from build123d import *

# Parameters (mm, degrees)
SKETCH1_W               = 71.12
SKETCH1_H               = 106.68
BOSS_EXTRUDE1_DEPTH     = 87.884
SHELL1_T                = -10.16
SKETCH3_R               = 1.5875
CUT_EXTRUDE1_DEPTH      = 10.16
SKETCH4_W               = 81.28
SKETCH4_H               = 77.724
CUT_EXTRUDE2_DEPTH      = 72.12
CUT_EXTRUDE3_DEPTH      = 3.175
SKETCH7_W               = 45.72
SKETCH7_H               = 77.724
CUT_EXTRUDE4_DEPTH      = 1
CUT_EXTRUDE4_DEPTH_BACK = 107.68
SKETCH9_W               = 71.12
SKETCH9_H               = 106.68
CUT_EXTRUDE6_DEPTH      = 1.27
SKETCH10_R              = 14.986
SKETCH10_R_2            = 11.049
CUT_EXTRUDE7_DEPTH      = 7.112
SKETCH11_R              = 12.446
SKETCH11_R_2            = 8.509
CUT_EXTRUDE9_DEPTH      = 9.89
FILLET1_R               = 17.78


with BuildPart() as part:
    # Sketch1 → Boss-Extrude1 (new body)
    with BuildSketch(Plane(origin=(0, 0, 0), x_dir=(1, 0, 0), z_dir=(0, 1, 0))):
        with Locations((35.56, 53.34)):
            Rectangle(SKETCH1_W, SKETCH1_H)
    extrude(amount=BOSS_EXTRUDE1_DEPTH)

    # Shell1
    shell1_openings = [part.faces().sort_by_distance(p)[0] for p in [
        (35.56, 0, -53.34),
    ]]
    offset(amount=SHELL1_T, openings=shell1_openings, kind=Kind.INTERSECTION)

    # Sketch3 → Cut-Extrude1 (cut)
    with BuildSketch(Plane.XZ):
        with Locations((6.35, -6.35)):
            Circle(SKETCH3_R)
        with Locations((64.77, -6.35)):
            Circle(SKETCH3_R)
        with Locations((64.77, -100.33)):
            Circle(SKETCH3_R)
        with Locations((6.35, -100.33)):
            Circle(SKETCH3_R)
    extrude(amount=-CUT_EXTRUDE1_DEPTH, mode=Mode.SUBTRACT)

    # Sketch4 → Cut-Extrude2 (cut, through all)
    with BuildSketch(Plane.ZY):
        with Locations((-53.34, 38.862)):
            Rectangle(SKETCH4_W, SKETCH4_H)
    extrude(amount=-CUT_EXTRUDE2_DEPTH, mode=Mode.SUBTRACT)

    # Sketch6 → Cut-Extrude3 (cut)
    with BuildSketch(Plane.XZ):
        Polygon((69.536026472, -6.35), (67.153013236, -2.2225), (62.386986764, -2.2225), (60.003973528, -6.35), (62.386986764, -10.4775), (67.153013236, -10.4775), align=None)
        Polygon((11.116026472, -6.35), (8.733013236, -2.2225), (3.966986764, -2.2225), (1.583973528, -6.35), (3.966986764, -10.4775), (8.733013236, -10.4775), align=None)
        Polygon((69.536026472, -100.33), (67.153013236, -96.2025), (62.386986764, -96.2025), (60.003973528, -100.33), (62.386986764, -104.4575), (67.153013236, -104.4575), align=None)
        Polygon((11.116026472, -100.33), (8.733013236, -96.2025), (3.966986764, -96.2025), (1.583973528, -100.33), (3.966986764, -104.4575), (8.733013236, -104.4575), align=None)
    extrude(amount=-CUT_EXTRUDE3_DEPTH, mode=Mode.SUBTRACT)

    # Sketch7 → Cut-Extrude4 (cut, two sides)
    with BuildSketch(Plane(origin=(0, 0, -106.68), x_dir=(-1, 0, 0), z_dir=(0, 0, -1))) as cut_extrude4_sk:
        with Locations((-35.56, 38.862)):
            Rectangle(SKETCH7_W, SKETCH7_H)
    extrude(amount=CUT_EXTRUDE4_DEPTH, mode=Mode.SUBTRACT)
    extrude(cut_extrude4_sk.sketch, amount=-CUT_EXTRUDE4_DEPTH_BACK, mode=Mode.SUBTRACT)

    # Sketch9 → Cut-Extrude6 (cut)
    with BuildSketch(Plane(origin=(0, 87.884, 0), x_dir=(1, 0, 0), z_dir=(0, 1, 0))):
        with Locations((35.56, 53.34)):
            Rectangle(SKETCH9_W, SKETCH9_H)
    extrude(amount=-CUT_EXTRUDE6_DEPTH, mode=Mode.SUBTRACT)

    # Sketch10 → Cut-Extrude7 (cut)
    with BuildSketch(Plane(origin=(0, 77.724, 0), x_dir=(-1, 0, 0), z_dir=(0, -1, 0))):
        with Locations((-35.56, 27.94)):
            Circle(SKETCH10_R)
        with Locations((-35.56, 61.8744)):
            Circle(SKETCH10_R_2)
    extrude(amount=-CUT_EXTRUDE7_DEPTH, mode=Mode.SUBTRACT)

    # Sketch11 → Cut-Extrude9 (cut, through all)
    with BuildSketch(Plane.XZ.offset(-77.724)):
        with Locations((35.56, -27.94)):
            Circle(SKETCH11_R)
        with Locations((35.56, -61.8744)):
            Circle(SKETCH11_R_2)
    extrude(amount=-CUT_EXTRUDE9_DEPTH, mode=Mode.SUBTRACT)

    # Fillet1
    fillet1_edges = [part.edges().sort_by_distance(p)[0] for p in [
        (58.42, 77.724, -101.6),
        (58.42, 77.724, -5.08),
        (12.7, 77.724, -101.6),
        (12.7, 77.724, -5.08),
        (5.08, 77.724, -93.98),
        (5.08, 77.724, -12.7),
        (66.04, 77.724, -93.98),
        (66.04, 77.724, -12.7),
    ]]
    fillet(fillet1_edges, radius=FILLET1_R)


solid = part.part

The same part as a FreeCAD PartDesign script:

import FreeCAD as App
import Part
import Sketcher
Q = App.Units.Quantity


def edges_at(feature, points):
    """Names of the edges that pass closest to the given points."""
    edges = feature.Shape.Edges
    near = lambda p: min(range(len(edges)), key=lambda i: edges[i].distToShape(Part.Vertex(*p))[0])
    return sorted({f"Edge{near(p) + 1}" for p in points})


def faces_at(feature, points):
    """Names of the faces that lie closest to the given points."""
    faces = feature.Shape.Faces
    near = lambda p: min(range(len(faces)), key=lambda i: faces[i].distToShape(Part.Vertex(*p))[0])
    return sorted({f"Face{near(p) + 1}" for p in points})

doc = App.newDocument("Part")
body = doc.addObject("PartDesign::Body", "Body")

# Sketch on XZ plane
sketch1 = body.newObject("Sketcher::SketchObject", "Sketch")
sketch1.AttachmentSupport = (doc.getObject("XZ_Plane"), [""])
sketch1.MapMode = "FlatFace"
sketch1.addGeometry([
    Part.LineSegment(App.Vector(0, -106.68, 0), App.Vector(0, 0, 0)),
    Part.LineSegment(App.Vector(0, 0, 0), App.Vector(71.12, 0, 0)),
    Part.LineSegment(App.Vector(71.12, 0, 0), App.Vector(71.12, -106.68, 0)),
    Part.LineSegment(App.Vector(71.12, -106.68, 0), App.Vector(0, -106.68, 0)),
], False)
sketch1.addConstraint([
    Sketcher.Constraint("Coincident", 0, 2, 1, 1),
    Sketcher.Constraint("Coincident", 1, 2, 2, 1),
    Sketcher.Constraint("Coincident", 2, 2, 3, 1),
    Sketcher.Constraint("Coincident", 3, 2, 0, 1),
    Sketcher.Constraint("Vertical", 0),
    Sketcher.Constraint("Horizontal", 1),
    Sketcher.Constraint("Vertical", 2),
    Sketcher.Constraint("Horizontal", 3),
    Sketcher.Constraint("Coincident", 0, 2, -1, 1),
    Sketcher.Constraint("DistanceX", 1, 1, 1, 2, Q("2.8 in")),
    Sketcher.Constraint("DistanceY", 0, 1, 0, 2, Q("4.2 in")),
])
pad1 = body.newObject("PartDesign::Pad", "Pad")
pad1.Profile = sketch1
pad1.Length = Q("3.46 in")
pad1.Reversed = True
doc.recompute()

thickness = body.newObject("PartDesign::Thickness", "Thickness")
thickness.Base = (pad1, faces_at(pad1, [(35.56, 0, -53.34)]))
thickness.Value = Q("0.4 in")
thickness.Reversed = True
thickness.Join = "Intersection"

# Sketch on XZ plane
sketch2 = body.newObject("Sketcher::SketchObject", "Sketch001")
sketch2.AttachmentSupport = (doc.getObject("XZ_Plane"), [""])
sketch2.MapMode = "FlatFace"
sketch2.addGeometry([
    Part.Circle(App.Vector(6.35, -6.35, 0), App.Vector(0, 0, 1), 1.5875),
    Part.Circle(App.Vector(64.77, -6.35, 0), App.Vector(0, 0, 1), 1.5875),
    Part.Circle(App.Vector(64.77, -100.33, 0), App.Vector(0, 0, 1), 1.5875),
    Part.Circle(App.Vector(6.35, -100.33, 0), App.Vector(0, 0, 1), 1.5875),
], False)
sketch2.addConstraint([
    Sketcher.Constraint("Equal", 0, 1),
    Sketcher.Constraint("Equal", 1, 2),
    Sketcher.Constraint("Equal", 2, 3),
    Sketcher.Constraint("Horizontal", 0, 3, 1, 3),
    Sketcher.Constraint("Horizontal", 2, 3, 3, 3),
    Sketcher.Constraint("Vertical", 1, 3, 2, 3),
    Sketcher.Constraint("Vertical", 0, 3, 3, 3),
    Sketcher.Constraint("Diameter", 0, Q("0.125 in")),
    Sketcher.Constraint("DistanceX", 0, 3, 1, 3, Q("2.3 in")),
    Sketcher.Constraint("DistanceY", 2, 3, 1, 3, Q("3.7 in")),
    Sketcher.Constraint("DistanceX", -1, 1, 0, 3, Q("0.25 in")),
    Sketcher.Constraint("DistanceY", 0, 3, -1, 1, Q("0.25 in")),
])
pocket1 = body.newObject("PartDesign::Pocket", "Pocket")
pocket1.Profile = sketch2
pocket1.Length = Q("0.4 in")

# Sketch on YZ plane
sketch3 = body.newObject("Sketcher::SketchObject", "Sketch002")
sketch3.AttachmentSupport = (doc.getObject("YZ_Plane"), [""])
sketch3.MapMode = "FlatFace"
sketch3.addGeometry([
    Part.LineSegment(App.Vector(77.724, -93.98, 0), App.Vector(0, -93.98, 0)),
    Part.LineSegment(App.Vector(0, -93.98, 0), App.Vector(0, -12.7, 0)),
    Part.LineSegment(App.Vector(0, -12.7, 0), App.Vector(77.724, -12.7, 0)),
    Part.LineSegment(App.Vector(77.724, -12.7, 0), App.Vector(77.724, -93.98, 0)),
], False)
sketch3.addConstraint([
    Sketcher.Constraint("Coincident", 0, 2, 1, 1),
    Sketcher.Constraint("Coincident", 1, 2, 2, 1),
    Sketcher.Constraint("Coincident", 2, 2, 3, 1),
    Sketcher.Constraint("Coincident", 3, 2, 0, 1),
    Sketcher.Constraint("Horizontal", 0),
    Sketcher.Constraint("Vertical", 1),
    Sketcher.Constraint("Horizontal", 2),
    Sketcher.Constraint("Vertical", 3),
    Sketcher.Constraint("PointOnObject", 0, 2, -2),
    Sketcher.Constraint("DistanceY", 1, 1, 1, 2, Q("3.2 in")),
    Sketcher.Constraint("DistanceX", 0, 2, 0, 1, Q("3.06 in")),
    Sketcher.Constraint("DistanceY", 0, 2, -1, 1, Q("3.7 in")),
])
pocket2 = body.newObject("PartDesign::Pocket", "Pocket001")
pocket2.Profile = sketch3
pocket2.Type = "ThroughAll"
pocket2.Reversed = True

# Sketch on XZ plane
sketch4 = body.newObject("Sketcher::SketchObject", "Sketch003")
sketch4.AttachmentSupport = (doc.getObject("XZ_Plane"), [""])
sketch4.MapMode = "FlatFace"
sketch4.addGeometry([
    Part.LineSegment(App.Vector(69.536026, -6.35, 0), App.Vector(67.153013, -2.2225, 0)),  # 0
    Part.LineSegment(App.Vector(67.153013, -2.2225, 0), App.Vector(62.386987, -2.2225, 0)),  # 1
    Part.LineSegment(App.Vector(62.386987, -2.2225, 0), App.Vector(60.003974, -6.35, 0)),  # 2
    Part.LineSegment(App.Vector(60.003974, -6.35, 0), App.Vector(62.386987, -10.4775, 0)),  # 3
    Part.LineSegment(App.Vector(62.386987, -10.4775, 0), App.Vector(67.153013, -10.4775, 0)),  # 4
    Part.LineSegment(App.Vector(67.153013, -10.4775, 0), App.Vector(69.536026, -6.35, 0)),  # 5
    Part.LineSegment(App.Vector(11.116026, -6.35, 0), App.Vector(8.733013, -2.2225, 0)),  # 6
    Part.LineSegment(App.Vector(8.733013, -2.2225, 0), App.Vector(3.966987, -2.2225, 0)),  # 7
    Part.LineSegment(App.Vector(3.966987, -2.2225, 0), App.Vector(1.583974, -6.35, 0)),  # 8
    Part.LineSegment(App.Vector(1.583974, -6.35, 0), App.Vector(3.966987, -10.4775, 0)),  # 9
    Part.LineSegment(App.Vector(3.966987, -10.4775, 0), App.Vector(8.733013, -10.4775, 0)),  # 10
    Part.LineSegment(App.Vector(8.733013, -10.4775, 0), App.Vector(11.116026, -6.35, 0)),  # 11
    Part.LineSegment(App.Vector(69.536026, -100.33, 0), App.Vector(67.153013, -96.2025, 0)),  # 12
    Part.LineSegment(App.Vector(67.153013, -96.2025, 0), App.Vector(62.386987, -96.2025, 0)),  # 13
    Part.LineSegment(App.Vector(62.386987, -96.2025, 0), App.Vector(60.003974, -100.33, 0)),  # 14
    Part.LineSegment(App.Vector(60.003974, -100.33, 0), App.Vector(62.386987, -104.4575, 0)),  # 15
    Part.LineSegment(App.Vector(62.386987, -104.4575, 0), App.Vector(67.153013, -104.4575, 0)),  # 16
    Part.LineSegment(App.Vector(67.153013, -104.4575, 0), App.Vector(69.536026, -100.33, 0)),  # 17
    Part.LineSegment(App.Vector(11.116026, -100.33, 0), App.Vector(8.733013, -96.2025, 0)),  # 18
    Part.LineSegment(App.Vector(8.733013, -96.2025, 0), App.Vector(3.966987, -96.2025, 0)),  # 19
    Part.LineSegment(App.Vector(3.966987, -96.2025, 0), App.Vector(1.583974, -100.33, 0)),  # 20
    Part.LineSegment(App.Vector(1.583974, -100.33, 0), App.Vector(3.966987, -104.4575, 0)),  # 21
    Part.LineSegment(App.Vector(3.966987, -104.4575, 0), App.Vector(8.733013, -104.4575, 0)),  # 22
    Part.LineSegment(App.Vector(8.733013, -104.4575, 0), App.Vector(11.116026, -100.33, 0)),  # 23
], False)
sketch4.addConstraint([
    Sketcher.Constraint("Coincident", 0, 2, 1, 1),
    Sketcher.Constraint("Coincident", 1, 2, 2, 1),
    Sketcher.Constraint("Coincident", 2, 2, 3, 1),
    Sketcher.Constraint("Coincident", 3, 2, 4, 1),
    Sketcher.Constraint("Coincident", 4, 2, 5, 1),
    Sketcher.Constraint("Coincident", 5, 2, 0, 1),
    Sketcher.Constraint("Coincident", 6, 2, 7, 1),
    Sketcher.Constraint("Coincident", 7, 2, 8, 1),
    Sketcher.Constraint("Coincident", 8, 2, 9, 1),
    Sketcher.Constraint("Coincident", 9, 2, 10, 1),
    Sketcher.Constraint("Coincident", 10, 2, 11, 1),
    Sketcher.Constraint("Coincident", 11, 2, 6, 1),
    Sketcher.Constraint("Coincident", 12, 2, 13, 1),
    Sketcher.Constraint("Coincident", 13, 2, 14, 1),
    Sketcher.Constraint("Coincident", 14, 2, 15, 1),
    Sketcher.Constraint("Coincident", 15, 2, 16, 1),
    Sketcher.Constraint("Coincident", 16, 2, 17, 1),
    Sketcher.Constraint("Coincident", 17, 2, 12, 1),
    Sketcher.Constraint("Coincident", 18, 2, 19, 1),
    Sketcher.Constraint("Coincident", 19, 2, 20, 1),
    Sketcher.Constraint("Coincident", 20, 2, 21, 1),
    Sketcher.Constraint("Coincident", 21, 2, 22, 1),
    Sketcher.Constraint("Coincident", 22, 2, 23, 1),
    Sketcher.Constraint("Coincident", 23, 2, 18, 1),
    Sketcher.Constraint("Horizontal", 1),
    Sketcher.Constraint("Horizontal", 4),
    Sketcher.Constraint("Horizontal", 7),
    Sketcher.Constraint("Horizontal", 10),
    Sketcher.Constraint("Horizontal", 13),
    Sketcher.Constraint("Horizontal", 16),
    Sketcher.Constraint("Horizontal", 19),
    Sketcher.Constraint("Horizontal", 22),
    Sketcher.Constraint("Parallel", 0, 3),
    Sketcher.Constraint("Parallel", 2, 5),
    Sketcher.Constraint("Parallel", 3, 6),
    Sketcher.Constraint("Parallel", 5, 8),
    Sketcher.Constraint("Parallel", 6, 9),
    Sketcher.Constraint("Parallel", 8, 11),
    Sketcher.Constraint("Parallel", 9, 12),
    Sketcher.Constraint("Parallel", 11, 14),
    Sketcher.Constraint("Parallel", 12, 15),
    Sketcher.Constraint("Parallel", 14, 17),
    Sketcher.Constraint("Parallel", 15, 18),
    Sketcher.Constraint("Parallel", 17, 20),
    Sketcher.Constraint("Parallel", 18, 21),
    Sketcher.Constraint("Parallel", 20, 23),
    Sketcher.Constraint("Horizontal", 2, 2, 5, 2),
    Sketcher.Constraint("Horizontal", 1, 2, 6, 2),
    Sketcher.Constraint("Horizontal", 5, 2, 8, 2),
    Sketcher.Constraint("Horizontal", 4, 2, 9, 2),
    Sketcher.Constraint("Horizontal", 8, 2, 11, 2),
    Sketcher.Constraint("Horizontal", 14, 2, 17, 2),
    Sketcher.Constraint("Horizontal", 13, 2, 18, 2),
    Sketcher.Constraint("Horizontal", 17, 2, 20, 2),
    Sketcher.Constraint("Horizontal", 16, 2, 21, 2),
    Sketcher.Constraint("Horizontal", 20, 2, 23, 2),
    Sketcher.Constraint("Vertical", 1, 2, 3, 2),
    Sketcher.Constraint("Vertical", 0, 2, 4, 2),
    Sketcher.Constraint("Vertical", 4, 2, 12, 2),
    Sketcher.Constraint("Vertical", 3, 2, 13, 2),
    Sketcher.Constraint("Vertical", 2, 2, 14, 2),
    Sketcher.Constraint("Vertical", 13, 2, 15, 2),
    Sketcher.Constraint("Vertical", 10, 2, 18, 2),
    Sketcher.Constraint("Vertical", 9, 2, 19, 2),
    Sketcher.Constraint("Equal", 4, 7),
    Sketcher.Constraint("Angle", 0, Q("120 deg")),
    Sketcher.Constraint("DistanceX", 6, 2, 0, 2, Q("2.3 in")),
    Sketcher.Constraint("DistanceY", 12, 2, 0, 2, Q("3.7 in")),
    Sketcher.Constraint("DistanceY", 2, 2, -1, 1, Q("0.25 in")),
    Sketcher.Constraint("DistanceY", 3, 2, 1, 2, Q("0.325 in")),
    Sketcher.Constraint("DistanceX", 1, 2, 1, 1, Q("4.766026 mm")),
    Sketcher.Constraint("DistanceX", -1, 1, 0, 2, Q("67.153013 mm")),
])
pocket3 = body.newObject("PartDesign::Pocket", "Pocket002")
pocket3.Profile = sketch4
pocket3.Length = Q("0.125 in")

# Sketch on XY plane
sketch5 = body.newObject("Sketcher::SketchObject", "Sketch004")
sketch5.AttachmentSupport = (doc.getObject("XY_Plane"), [""])
sketch5.MapMode = "FlatFace"
sketch5.AttachmentOffset = App.Placement(App.Vector(0, 0, -4.2 * 25.4), App.Rotation())
sketch5.addGeometry([
    Part.LineSegment(App.Vector(58.42, 77.724, 0), App.Vector(58.42, 0, 0)),
    Part.LineSegment(App.Vector(58.42, 0, 0), App.Vector(12.7, 0, 0)),
    Part.LineSegment(App.Vector(12.7, 0, 0), App.Vector(12.7, 77.724, 0)),
    Part.LineSegment(App.Vector(12.7, 77.724, 0), App.Vector(58.42, 77.724, 0)),
], False)
sketch5.addConstraint([
    Sketcher.Constraint("Coincident", 0, 2, 1, 1),
    Sketcher.Constraint("Coincident", 1, 2, 2, 1),
    Sketcher.Constraint("Coincident", 2, 2, 3, 1),
    Sketcher.Constraint("Coincident", 3, 2, 0, 1),
    Sketcher.Constraint("Vertical", 0),
    Sketcher.Constraint("Horizontal", 1),
    Sketcher.Constraint("Vertical", 2),
    Sketcher.Constraint("Horizontal", 3),
    Sketcher.Constraint("PointOnObject", 0, 2, -1),
    Sketcher.Constraint("DistanceX", 1, 2, 1, 1, Q("1.8 in")),
    Sketcher.Constraint("DistanceY", 0, 2, 0, 1, Q("3.06 in")),
    Sketcher.Constraint("DistanceX", -1, 1, 0, 2, Q("2.3 in")),
])
pocket4 = body.newObject("PartDesign::Pocket", "Pocket003")
pocket4.Profile = sketch5
pocket4.Type = "ThroughAll"
pocket4.Midplane = True

# Sketch on XZ plane
sketch6 = body.newObject("Sketcher::SketchObject", "Sketch005")
sketch6.AttachmentSupport = (doc.getObject("XZ_Plane"), [""])
sketch6.MapMode = "FlatFace"
sketch6.AttachmentOffset = App.Placement(App.Vector(0, 0, -3.46 * 25.4), App.Rotation())
sketch6.addGeometry([
    Part.LineSegment(App.Vector(0, -106.68, 0), App.Vector(0, 0, 0)),
    Part.LineSegment(App.Vector(0, 0, 0), App.Vector(71.12, 0, 0)),
    Part.LineSegment(App.Vector(71.12, 0, 0), App.Vector(71.12, -106.68, 0)),
    Part.LineSegment(App.Vector(71.12, -106.68, 0), App.Vector(0, -106.68, 0)),
], False)
sketch6.addConstraint([
    Sketcher.Constraint("Coincident", 0, 2, 1, 1),
    Sketcher.Constraint("Coincident", 1, 2, 2, 1),
    Sketcher.Constraint("Coincident", 2, 2, 3, 1),
    Sketcher.Constraint("Coincident", 3, 2, 0, 1),
    Sketcher.Constraint("Vertical", 0),
    Sketcher.Constraint("Horizontal", 1),
    Sketcher.Constraint("Vertical", 2),
    Sketcher.Constraint("Horizontal", 3),
    Sketcher.Constraint("Coincident", 0, 2, -1, 1),
    Sketcher.Constraint("DistanceX", 1, 1, 1, 2, Q("2.8 in")),
    Sketcher.Constraint("DistanceY", 0, 1, 0, 2, Q("4.2 in")),
])
pocket5 = body.newObject("PartDesign::Pocket", "Pocket004")
pocket5.Profile = sketch6
pocket5.Length = Q("0.05 in")
pocket5.Reversed = True

# Sketch on XZ plane
sketch7 = body.newObject("Sketcher::SketchObject", "Sketch006")
sketch7.AttachmentSupport = (doc.getObject("XZ_Plane"), [""])
sketch7.MapMode = "FlatFace"
sketch7.AttachmentOffset = App.Placement(App.Vector(0, 0, -3.06 * 25.4), App.Rotation())
sketch7.addGeometry([
    Part.Circle(App.Vector(35.56, -27.94, 0), App.Vector(0, 0, 1), 14.986),
    Part.Circle(App.Vector(35.56, -61.8744, 0), App.Vector(0, 0, 1), 11.049),
], False)
sketch7.addConstraint([
    Sketcher.Constraint("Vertical", 0, 3, 1, 3),
    Sketcher.Constraint("Diameter", 0, Q("1.18 in")),
    Sketcher.Constraint("Diameter", 1, Q("0.87 in")),
    Sketcher.Constraint("DistanceX", -1, 1, 0, 3, Q("1.4 in")),
    Sketcher.Constraint("DistanceY", 0, 3, -1, 1, Q("1.1 in")),
    Sketcher.Constraint("DistanceY", 1, 3, -1, 1, Q("2.436 in")),
])
pocket6 = body.newObject("PartDesign::Pocket", "Pocket005")
pocket6.Profile = sketch7
pocket6.Length = Q("0.28 in")

# Sketch on XZ plane
sketch8 = body.newObject("Sketcher::SketchObject", "Sketch007")
sketch8.AttachmentSupport = (doc.getObject("XZ_Plane"), [""])
sketch8.MapMode = "FlatFace"
sketch8.AttachmentOffset = App.Placement(App.Vector(0, 0, -3.06 * 25.4), App.Rotation())
sketch8.addGeometry([
    Part.Circle(App.Vector(35.56, -27.94, 0), App.Vector(0, 0, 1), 12.446),
    Part.Circle(App.Vector(35.56, -61.8744, 0), App.Vector(0, 0, 1), 8.509),
], False)
sketch8.addConstraint([
    Sketcher.Constraint("Vertical", 0, 3, 1, 3),
    Sketcher.Constraint("Diameter", 0, Q("0.98 in")),
    Sketcher.Constraint("Diameter", 1, Q("0.67 in")),
    Sketcher.Constraint("DistanceX", -1, 1, 0, 3, Q("1.4 in")),
    Sketcher.Constraint("DistanceY", 0, 3, -1, 1, Q("1.1 in")),
    Sketcher.Constraint("DistanceY", 1, 3, -1, 1, Q("2.436 in")),
])
pocket7 = body.newObject("PartDesign::Pocket", "Pocket006")
pocket7.Profile = sketch8
pocket7.Type = "ThroughAll"
doc.recompute()

fillet = body.newObject("PartDesign::Fillet", "Fillet")
fillet.Base = (pocket7, edges_at(pocket7, [
    (58.42, 77.724, -101.6),
    (58.42, 77.724, -5.08),
    (12.7, 77.724, -101.6),
    (12.7, 77.724, -5.08),
    (5.08, 77.724, -93.98),
    (5.08, 77.724, -12.7),
    (66.04, 77.724, -93.98),
    (66.04, 77.724, -12.7),
]))
fillet.Radius = Q("0.7 in")

doc.recompute()
